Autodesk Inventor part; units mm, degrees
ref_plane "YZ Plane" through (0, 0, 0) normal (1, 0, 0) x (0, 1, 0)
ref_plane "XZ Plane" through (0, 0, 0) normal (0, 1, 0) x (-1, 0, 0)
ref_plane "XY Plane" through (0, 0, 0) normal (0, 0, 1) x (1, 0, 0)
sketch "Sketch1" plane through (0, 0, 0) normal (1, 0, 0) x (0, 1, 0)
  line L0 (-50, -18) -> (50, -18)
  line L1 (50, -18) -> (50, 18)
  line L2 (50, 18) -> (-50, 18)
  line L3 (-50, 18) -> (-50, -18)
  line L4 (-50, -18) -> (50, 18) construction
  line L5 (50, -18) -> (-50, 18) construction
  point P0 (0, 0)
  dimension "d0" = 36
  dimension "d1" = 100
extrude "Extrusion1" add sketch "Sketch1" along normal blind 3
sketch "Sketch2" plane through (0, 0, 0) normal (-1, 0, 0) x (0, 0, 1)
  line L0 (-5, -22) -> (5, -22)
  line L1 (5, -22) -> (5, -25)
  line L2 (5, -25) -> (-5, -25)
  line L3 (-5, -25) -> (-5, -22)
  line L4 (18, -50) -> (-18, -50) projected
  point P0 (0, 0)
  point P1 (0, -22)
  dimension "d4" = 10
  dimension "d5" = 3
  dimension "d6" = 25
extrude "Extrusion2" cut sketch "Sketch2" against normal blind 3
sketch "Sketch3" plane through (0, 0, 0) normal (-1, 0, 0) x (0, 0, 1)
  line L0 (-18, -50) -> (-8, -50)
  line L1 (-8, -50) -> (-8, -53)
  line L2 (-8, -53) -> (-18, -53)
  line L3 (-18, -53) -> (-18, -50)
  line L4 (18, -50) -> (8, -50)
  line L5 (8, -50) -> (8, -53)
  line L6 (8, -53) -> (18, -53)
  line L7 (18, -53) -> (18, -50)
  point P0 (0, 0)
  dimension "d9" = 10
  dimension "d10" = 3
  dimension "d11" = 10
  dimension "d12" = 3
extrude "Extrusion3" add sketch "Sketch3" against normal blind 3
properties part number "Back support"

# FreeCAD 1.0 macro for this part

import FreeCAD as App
import Part
import Sketcher
from FreeCAD import Vector

doc = App.newDocument("Part")
body = doc.addObject("PartDesign::Body", "Body")

sketch1 = body.newObject("Sketcher::SketchObject", "Sketch")
sketch1.AttachmentSupport = (doc.getObject("YZ_Plane"), [""])
sketch1.MapMode = "FlatFace"
sketch1.addGeometry(Part.LineSegment(Vector(-50, 18, 0), Vector(-50, -18, 0)), False)
sketch1.addGeometry(Part.LineSegment(Vector(-50, -18, 0), Vector(50, -18, 0)), False)
sketch1.addGeometry(Part.LineSegment(Vector(50, -18, 0), Vector(50, 18, 0)), False)
sketch1.addGeometry(Part.LineSegment(Vector(50, 18, 0), Vector(-50, 18, 0)), False)
sketch1.addConstraint(Sketcher.Constraint("Coincident", 0, 2, 1, 1))
sketch1.addConstraint(Sketcher.Constraint("Coincident", 1, 2, 2, 1))
sketch1.addConstraint(Sketcher.Constraint("Coincident", 2, 2, 3, 1))
sketch1.addConstraint(Sketcher.Constraint("Coincident", 3, 2, 0, 1))
sketch1.addConstraint(Sketcher.Constraint("Vertical", 0))
sketch1.addConstraint(Sketcher.Constraint("Horizontal", 1))
sketch1.addConstraint(Sketcher.Constraint("Vertical", 2))
sketch1.addConstraint(Sketcher.Constraint("Horizontal", 3))
sketch1.addConstraint(Sketcher.Constraint("Symmetric", 0, 2, 2, 2, -1, 1))
sketch1.addConstraint(Sketcher.Constraint("DistanceX", 1, 1, 1, 2, 100.0))
sketch1.addConstraint(Sketcher.Constraint("DistanceY", 0, 2, 0, 1, 36.0))
pad1 = body.newObject("PartDesign::Pad", "Pad")
pad1.Profile = sketch1
pad1.Length = 3

sketch2 = body.newObject("Sketcher::SketchObject", "Sketch001")
sketch2.AttachmentSupport = (doc.getObject("YZ_Plane"), [""])
sketch2.MapMode = "FlatFace"
sketch2.addGeometry(Part.LineSegment(Vector(-22, 5, 0), Vector(-22, -5, 0)), False)
sketch2.addGeometry(Part.LineSegment(Vector(-22, -5, 0), Vector(-25, -5, 0)), False)
sketch2.addGeometry(Part.LineSegment(Vector(-25, -5, 0), Vector(-25, 5, 0)), False)
sketch2.addGeometry(Part.LineSegment(Vector(-25, 5, 0), Vector(-22, 5, 0)), False)
sketch2.addConstraint(Sketcher.Constraint("Coincident", 0, 2, 1, 1))
sketch2.addConstraint(Sketcher.Constraint("Coincident", 1, 2, 2, 1))
sketch2.addConstraint(Sketcher.Constraint("Coincident", 2, 2, 3, 1))
sketch2.addConstraint(Sketcher.Constraint("Coincident", 3, 2, 0, 1))
sketch2.addConstraint(Sketcher.Constraint("Vertical", 0))
sketch2.addConstraint(Sketcher.Constraint("Horizontal", 1))
sketch2.addConstraint(Sketcher.Constraint("Vertical", 2))
sketch2.addConstraint(Sketcher.Constraint("Horizontal", 3))
sketch2.addConstraint(Sketcher.Constraint("DistanceX", 1, 2, 1, 1, 3.0))
sketch2.addConstraint(Sketcher.Constraint("DistanceY", 0, 2, 0, 1, 10.0))
sketch2.addConstraint(Sketcher.Constraint("DistanceX", 1, 2, -1, 1, 25.0))
sketch2.addConstraint(Sketcher.Constraint("DistanceY", 0, 2, -1, 1, 5.0))
pocket1 = body.newObject("PartDesign::Pocket", "Pocket")
pocket1.Profile = sketch2
pocket1.Length = 3
pocket1.Reversed = True

sketch3 = body.newObject("Sketcher::SketchObject", "Sketch002")
sketch3.AttachmentSupport = (doc.getObject("YZ_Plane"), [""])
sketch3.MapMode = "FlatFace"
sketch3.addGeometry(Part.LineSegment(Vector(-50, -8, 0), Vector(-50, -18, 0)), False)
sketch3.addGeometry(Part.LineSegment(Vector(-50, -18, 0), Vector(-53, -18, 0)), False)
sketch3.addGeometry(Part.LineSegment(Vector(-53, -18, 0), Vector(-53, -8, 0)), False)
sketch3.addGeometry(Part.LineSegment(Vector(-53, -8, 0), Vector(-50, -8, 0)), False)
sketch3.addGeometry(Part.LineSegment(Vector(-53, 18, 0), Vector(-50, 18, 0)), False)
sketch3.addGeometry(Part.LineSegment(Vector(-50, 18, 0), Vector(-50, 8, 0)), False)
sketch3.addGeometry(Part.LineSegment(Vector(-50, 8, 0), Vector(-53, 8, 0)), False)
sketch3.addGeometry(Part.LineSegment(Vector(-53, 8, 0), Vector(-53, 18, 0)), False)
sketch3.addConstraint(Sketcher.Constraint("Coincident", 0, 2, 1, 1))
sketch3.addConstraint(Sketcher.Constraint("Coincident", 1, 2, 2, 1))
sketch3.addConstraint(Sketcher.Constraint("Coincident", 2, 2, 3, 1))
sketch3.addConstraint(Sketcher.Constraint("Coincident", 3, 2, 0, 1))
sketch3.addConstraint(Sketcher.Constraint("Coincident", 4, 2, 5, 1))
sketch3.addConstraint(Sketcher.Constraint("Coincident", 5, 2, 6, 1))
sketch3.addConstraint(Sketcher.Constraint("Coincident", 6, 2, 7, 1))
sketch3.addConstraint(Sketcher.Constraint("Coincident", 7, 2, 4, 1))
sketch3.addConstraint(Sketcher.Constraint("Vertical", 0))
sketch3.addConstraint(Sketcher.Constraint("Horizontal", 1))
sketch3.addConstraint(Sketcher.Constraint("Vertical", 2))
sketch3.addConstraint(Sketcher.Constraint("Horizontal", 3))
sketch3.addConstraint(Sketcher.Constraint("Horizontal", 4))
sketch3.addConstraint(Sketcher.Constraint("Vertical", 5))
sketch3.addConstraint(Sketcher.Constraint("Horizontal", 6))
sketch3.addConstraint(Sketcher.Constraint("Vertical", 7))
sketch3.addConstraint(Sketcher.Constraint("Symmetric", 0, 2, 4, 2, -1))
sketch3.addConstraint(Sketcher.Constraint("Symmetric", 2, 2, 6, 2, -1))
sketch3.addConstraint(Sketcher.Constraint("DistanceX", 1, 2, 1, 1, 3.0))
sketch3.addConstraint(Sketcher.Constraint("DistanceY", 0, 2, 0, 1, 10.0))
sketch3.addConstraint(Sketcher.Constraint("DistanceX", 0, 2, -1, 1, 50.0))
sketch3.addConstraint(Sketcher.Constraint("DistanceY", 0, 2, -1, 1, 18.0))
pad2 = body.newObject("PartDesign::Pad", "Pad001")
pad2.Profile = sketch3
pad2.Length = 3

doc.recompute()
